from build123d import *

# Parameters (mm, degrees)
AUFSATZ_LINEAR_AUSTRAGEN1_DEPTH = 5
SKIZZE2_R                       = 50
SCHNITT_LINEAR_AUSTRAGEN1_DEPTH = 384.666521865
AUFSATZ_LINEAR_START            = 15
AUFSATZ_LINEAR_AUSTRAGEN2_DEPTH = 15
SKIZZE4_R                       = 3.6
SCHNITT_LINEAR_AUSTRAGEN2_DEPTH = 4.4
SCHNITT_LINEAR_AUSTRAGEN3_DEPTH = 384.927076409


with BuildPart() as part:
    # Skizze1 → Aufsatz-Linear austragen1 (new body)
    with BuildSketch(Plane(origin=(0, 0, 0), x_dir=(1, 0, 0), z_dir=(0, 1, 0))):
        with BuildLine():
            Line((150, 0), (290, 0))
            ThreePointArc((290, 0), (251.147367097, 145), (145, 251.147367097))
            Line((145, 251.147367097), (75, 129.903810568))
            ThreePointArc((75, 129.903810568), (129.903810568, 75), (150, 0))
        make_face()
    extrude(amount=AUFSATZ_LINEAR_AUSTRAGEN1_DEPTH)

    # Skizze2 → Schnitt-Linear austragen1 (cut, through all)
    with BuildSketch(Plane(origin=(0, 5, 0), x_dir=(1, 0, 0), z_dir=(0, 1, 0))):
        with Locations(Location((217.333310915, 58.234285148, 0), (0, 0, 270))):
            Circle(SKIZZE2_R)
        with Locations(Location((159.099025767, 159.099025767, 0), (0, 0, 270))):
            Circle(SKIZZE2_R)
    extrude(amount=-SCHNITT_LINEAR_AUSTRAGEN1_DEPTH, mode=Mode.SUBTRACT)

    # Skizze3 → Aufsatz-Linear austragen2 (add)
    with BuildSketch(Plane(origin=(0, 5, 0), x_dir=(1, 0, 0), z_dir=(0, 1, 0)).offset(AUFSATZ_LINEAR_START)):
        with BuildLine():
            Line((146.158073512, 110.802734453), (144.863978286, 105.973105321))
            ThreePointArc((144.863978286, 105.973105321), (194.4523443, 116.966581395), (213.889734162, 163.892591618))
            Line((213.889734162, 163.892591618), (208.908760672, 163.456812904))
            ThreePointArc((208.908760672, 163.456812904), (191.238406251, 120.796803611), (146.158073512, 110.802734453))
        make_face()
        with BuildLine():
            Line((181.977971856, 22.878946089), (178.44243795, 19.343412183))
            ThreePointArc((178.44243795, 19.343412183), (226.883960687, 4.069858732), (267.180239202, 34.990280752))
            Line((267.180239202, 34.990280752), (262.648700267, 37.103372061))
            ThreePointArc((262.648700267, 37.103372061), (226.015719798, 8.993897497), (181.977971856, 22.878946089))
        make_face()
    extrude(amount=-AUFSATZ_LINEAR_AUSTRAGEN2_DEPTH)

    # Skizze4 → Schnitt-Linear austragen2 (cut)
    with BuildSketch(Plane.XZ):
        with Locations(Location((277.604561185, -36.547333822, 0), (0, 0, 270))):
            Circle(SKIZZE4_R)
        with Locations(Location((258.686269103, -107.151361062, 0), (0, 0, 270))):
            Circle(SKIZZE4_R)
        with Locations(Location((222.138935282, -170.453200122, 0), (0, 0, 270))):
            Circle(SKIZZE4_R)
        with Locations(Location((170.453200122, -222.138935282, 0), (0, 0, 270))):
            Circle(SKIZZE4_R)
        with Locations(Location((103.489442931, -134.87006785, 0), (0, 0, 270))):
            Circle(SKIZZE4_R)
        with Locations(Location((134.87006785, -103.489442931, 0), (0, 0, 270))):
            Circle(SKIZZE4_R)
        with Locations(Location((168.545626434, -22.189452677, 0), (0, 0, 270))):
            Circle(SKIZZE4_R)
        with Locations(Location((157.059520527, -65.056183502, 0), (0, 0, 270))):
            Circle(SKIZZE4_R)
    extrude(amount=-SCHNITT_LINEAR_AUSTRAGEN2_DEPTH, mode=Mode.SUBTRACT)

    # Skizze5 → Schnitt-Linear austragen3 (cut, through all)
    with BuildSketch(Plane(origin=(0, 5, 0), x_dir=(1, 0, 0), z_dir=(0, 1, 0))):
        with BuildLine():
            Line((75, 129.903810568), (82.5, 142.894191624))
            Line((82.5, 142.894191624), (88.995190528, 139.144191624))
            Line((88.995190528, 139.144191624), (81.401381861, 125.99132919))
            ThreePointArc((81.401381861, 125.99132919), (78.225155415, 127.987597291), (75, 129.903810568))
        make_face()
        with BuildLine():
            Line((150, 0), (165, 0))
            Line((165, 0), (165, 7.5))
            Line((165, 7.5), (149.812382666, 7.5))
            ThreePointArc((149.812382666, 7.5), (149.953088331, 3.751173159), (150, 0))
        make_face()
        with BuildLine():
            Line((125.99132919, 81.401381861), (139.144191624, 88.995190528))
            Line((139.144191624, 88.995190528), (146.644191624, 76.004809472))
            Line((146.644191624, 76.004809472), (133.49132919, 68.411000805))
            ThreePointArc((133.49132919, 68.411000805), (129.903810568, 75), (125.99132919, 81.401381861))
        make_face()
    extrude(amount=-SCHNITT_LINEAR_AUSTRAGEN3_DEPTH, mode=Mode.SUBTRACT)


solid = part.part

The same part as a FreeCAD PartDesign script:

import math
import FreeCAD as App
import Part
import Sketcher
from FreeCAD import Vector
Q = App.Units.Quantity

doc = App.newDocument("Part")
params = doc.addObject("Spreadsheet::Sheet", "Params")
for row, (alias, value) in enumerate([
    ("sketch1_radius", "290 mm"),
    ("sketch1_radius2", "150 mm"),
    ("pad1_length", "5 mm"),
    ("sketch2_diameter", "100 mm"),
    ("sketch3_radius", "55 mm"),
    ("sketch3_radius2", "50 mm"),
    ("pad2_length", "15 mm"),
    ("sketch4_diameter", "7.2 mm"),
    ("pocket2_length", "4.4 mm"),
    ("sketch5_radius", "150 mm"),
    ("sketch5_width", "15 mm"),
    ("sketch5_length", "15 mm"),
    ("sketch5_height", "7.5 mm"),
    ("sketch5_length2", "7.5 mm"),
], start=1):
    params.set(f"A{row}", alias)
    params.set(f"B{row}", "=" + value)
    params.setAlias(f"B{row}", alias)

body = doc.addObject("PartDesign::Body", "Body")

# Sketch on XZ plane
sketch1 = body.newObject("Sketcher::SketchObject", "Sketch")
sketch1.AttachmentSupport = (doc.getObject("XZ_Plane"), [""])
sketch1.MapMode = "FlatFace"
sketch1.addGeometry(Part.LineSegment(Vector(150, 0, 0), Vector(290, 0, 0)), False)
sketch1.addGeometry(Part.ArcOfCircle(Part.Circle(Vector(0, 0, 0), Vector(0, 0, 1), 290), math.radians(-60), math.radians(0)), False)
sketch1.addGeometry(Part.LineSegment(Vector(145, -251, 0), Vector(75, -130, 0)), False)
sketch1.addGeometry(Part.ArcOfCircle(Part.Circle(Vector(0, 0, 0), Vector(0, 0, 1), 150), math.radians(-60), math.radians(0)), False)
sketch1.addConstraint(Sketcher.Constraint("Coincident", 0, 2, 1, 2))
sketch1.addConstraint(Sketcher.Constraint("Coincident", 1, 1, 2, 1))
sketch1.addConstraint(Sketcher.Constraint("Coincident", 2, 2, 3, 1))
sketch1.addConstraint(Sketcher.Constraint("Coincident", 3, 2, 0, 1))
sketch1.addConstraint(Sketcher.Constraint("Horizontal", 0))
sketch1.addConstraint(Sketcher.Constraint("Coincident", 1, 3, -1, 1))
sketch1.addConstraint(Sketcher.Constraint("Coincident", 3, 3, -1, 1))
sketch1.addConstraint(Sketcher.Constraint("PointOnObject", 0, 2, -1))
sketch1.addConstraint(Sketcher.Constraint("Radius", 1, Q("290 mm")))
sketch1.addConstraint(Sketcher.Constraint("Radius", 3, Q("150 mm")))
sketch1.addConstraint(Sketcher.Constraint("Angle", 2, Q("120 deg")))
sketch1.addConstraint(Sketcher.Constraint("DistanceX", -1, 1, 1, 1, Q("145 mm")))
sketch1.setExpression("Constraints[8]", "Params.sketch1_radius")
sketch1.setExpression("Constraints[9]", "Params.sketch1_radius2")
pad1 = body.newObject("PartDesign::Pad", "Pad")
pad1.Profile = sketch1
pad1.setExpression("Length", "Params.pad1_length")
pad1.Reversed = True

# Sketch on XZ plane
sketch2 = body.newObject("Sketcher::SketchObject", "Sketch001")
sketch2.AttachmentSupport = (doc.getObject("XZ_Plane"), [""])
sketch2.MapMode = "FlatFace"
sketch2.AttachmentOffset = App.Placement(Vector(0, 0, -5), App.Rotation())
sketch2.addGeometry(Part.Circle(Vector(217, -58, 0), Vector(0, 0, 1), 50), False)
sketch2.addGeometry(Part.Circle(Vector(159, -159, 0), Vector(0, 0, 1), 50), False)
sketch2.addConstraint(Sketcher.Constraint("Equal", 0, 1))
sketch2.addConstraint(Sketcher.Constraint("Diameter", 0, Q("100 mm")))
sketch2.addConstraint(Sketcher.Constraint("DistanceX", -1, 1, 0, 3, Q("217.333311 mm")))
sketch2.addConstraint(Sketcher.Constraint("DistanceY", 1, 3, 0, 3, Q("100.864741 mm")))
sketch2.addConstraint(Sketcher.Constraint("DistanceY", 0, 3, -1, 1, Q("58.234285 mm")))
sketch2.addConstraint(Sketcher.Constraint("DistanceX", -1, 1, 1, 3, Q("159.099026 mm")))
sketch2.setExpression("Constraints[1]", "Params.sketch2_diameter")
pocket1 = body.newObject("PartDesign::Pocket", "Pocket")
pocket1.Profile = sketch2
pocket1.Type = "ThroughAll"
pocket1.Reversed = True

# Sketch on XZ plane
sketch3 = body.newObject("Sketcher::SketchObject", "Sketch002")
sketch3.AttachmentSupport = (doc.getObject("XZ_Plane"), [""])
sketch3.MapMode = "FlatFace"
sketch3.AttachmentOffset = App.Placement(Vector(0, 0, -20), App.Rotation())
sketch3.addGeometry(Part.LineSegment(Vector(146.2, -110.8, 0), Vector(144.9, -106, 0)), False)
sketch3.addGeometry(Part.ArcOfCircle(Part.Circle(Vector(159.1, -159.1, 0), Vector(0, 0, 1), 55), math.radians(-5), math.radians(105)), False)
sketch3.addGeometry(Part.LineSegment(Vector(213.9, -163.9, 0), Vector(208.9, -163.5, 0)), False)
sketch3.addGeometry(Part.ArcOfCircle(Part.Circle(Vector(159.1, -159.1, 0), Vector(0, 0, 1), 50), math.radians(-5), math.radians(105)), False)
sketch3.addGeometry(Part.LineSegment(Vector(182, -22.9, 0), Vector(178.4, -19.3, 0)), False)
sketch3.addGeometry(Part.ArcOfCircle(Part.Circle(Vector(217.3, -58.2, 0), Vector(0, 0, 1), 55), math.radians(25), math.radians(135)), False)
sketch3.addGeometry(Part.LineSegment(Vector(267.2, -35, 0), Vector(262.6, -37.1, 0)), False)
sketch3.addGeometry(Part.ArcOfCircle(Part.Circle(Vector(217.3, -58.2, 0), Vector(0, 0, 1), 50), math.radians(25), math.radians(135)), False)
sketch3.addConstraint(Sketcher.Constraint("Coincident", 0, 2, 1, 2))
sketch3.addConstraint(Sketcher.Constraint("Coincident", 1, 1, 2, 1))
sketch3.addConstraint(Sketcher.Constraint("Coincident", 2, 2, 3, 1))
sketch3.addConstraint(Sketcher.Constraint("Coincident", 3, 2, 0, 1))
sketch3.addConstraint(Sketcher.Constraint("Coincident", 4, 2, 5, 2))
sketch3.addConstraint(Sketcher.Constraint("Coincident", 5, 1, 6, 1))
sketch3.addConstraint(Sketcher.Constraint("Coincident", 6, 2, 7, 1))
sketch3.addConstraint(Sketcher.Constraint("Coincident", 7, 2, 4, 1))
sketch3.addConstraint(Sketcher.Constraint("Coincident", 3, 3, 1, 3))
sketch3.addConstraint(Sketcher.Constraint("Coincident", 7, 3, 5, 3))
sketch3.addConstraint(Sketcher.Constraint("Equal", 1, 5))
sketch3.addConstraint(Sketcher.Constraint("Equal", 3, 7))
sketch3.addConstraint(Sketcher.Constraint("Radius", 1, Q("55 mm")))
sketch3.addConstraint(Sketcher.Constraint("Radius", 3, Q("50 mm")))
sketch3.addConstraint(Sketcher.Constraint("Angle", 0, Q("105 deg")))
sketch3.addConstraint(Sketcher.Constraint("Angle", 2, Q("175 deg")))
sketch3.addConstraint(Sketcher.Constraint("Angle", 4, Q("135 deg")))
sketch3.addConstraint(Sketcher.Constraint("Angle", 6, Q("-155 deg")))
sketch3.addConstraint(Sketcher.Constraint("DistanceX", -1, 1, 6, 2, Q("262.6487 mm")))
sketch3.addConstraint(Sketcher.Constraint("DistanceX", 4, 2, 5, 1, Q("88.737801 mm")))
sketch3.addConstraint(Sketcher.Constraint("DistanceX", -1, 1, 5, 3, Q("217.333311 mm")))
sketch3.addConstraint(Sketcher.Constraint("DistanceX", -1, 1, 0, 2, Q("144.863978 mm")))
sketch3.addConstraint(Sketcher.Constraint("DistanceY", 1, 1, -1, 1, Q("163.892592 mm")))
sketch3.addConstraint(Sketcher.Constraint("DistanceX", -1, 1, 2, 2, Q("208.908761 mm")))
sketch3.addConstraint(Sketcher.Constraint("DistanceY", 5, 1, -1, 1, Q("34.990281 mm")))
sketch3.addConstraint(Sketcher.Constraint("DistanceY", 1, 3, 5, 3, Q("100.864741 mm")))
sketch3.setExpression("Constraints[12]", "Params.sketch3_radius")
sketch3.setExpression("Constraints[13]", "Params.sketch3_radius2")
pad2 = body.newObject("PartDesign::Pad", "Pad001")
pad2.Profile = sketch3
pad2.setExpression("Length", "Params.pad2_length")

# Sketch on XZ plane
sketch4 = body.newObject("Sketcher::SketchObject", "Sketch003")
sketch4.AttachmentSupport = (doc.getObject("XZ_Plane"), [""])
sketch4.MapMode = "FlatFace"
sketch4.addGeometry(Part.Circle(Vector(277.6, -36.5, 0), Vector(0, 0, 1), 3.6), False)
sketch4.addGeometry(Part.Circle(Vector(258.7, -107.2, 0), Vector(0, 0, 1), 3.6), False)
sketch4.addGeometry(Part.Circle(Vector(222.1, -170.5, 0), Vector(0, 0, 1), 3.6), False)
sketch4.addGeometry(Part.Circle(Vector(170.5, -222.1, 0), Vector(0, 0, 1), 3.6), False)
sketch4.addGeometry(Part.Circle(Vector(103.5, -134.9, 0), Vector(0, 0, 1), 3.6), False)
sketch4.addGeometry(Part.Circle(Vector(134.9, -103.5, 0), Vector(0, 0, 1), 3.6), False)
sketch4.addGeometry(Part.Circle(Vector(168.5, -22.2, 0), Vector(0, 0, 1), 3.6), False)
sketch4.addGeometry(Part.Circle(Vector(157.1, -65.1, 0), Vector(0, 0, 1), 3.6), False)
sketch4.addConstraint(Sketcher.Constraint("Equal", 0, 1))
sketch4.addConstraint(Sketcher.Constraint("Equal", 1, 2))
sketch4.addConstraint(Sketcher.Constraint("Equal", 2, 3))
sketch4.addConstraint(Sketcher.Constraint("Equal", 3, 4))
sketch4.addConstraint(Sketcher.Constraint("Equal", 4, 5))
sketch4.addConstraint(Sketcher.Constraint("Equal", 5, 6))
sketch4.addConstraint(Sketcher.Constraint("Equal", 6, 7))
sketch4.addConstraint(Sketcher.Constraint("Diameter", 0, Q("7.2 mm")))
sketch4.addConstraint(Sketcher.Constraint("DistanceY", 2, 3, -1, 1, Q("170.4532 mm")))
sketch4.addConstraint(Sketcher.Constraint("DistanceX", -1, 1, 3, 3, Q("170.4532 mm")))
sketch4.addConstraint(Sketcher.Constraint("DistanceY", 3, 3, 0, 3, Q("185.591601 mm")))
sketch4.addConstraint(Sketcher.Constraint("DistanceX", 5, 3, 1, 3, Q("123.816201 mm")))
sketch4.addConstraint(Sketcher.Constraint("DistanceX", -1, 1, 0, 3, Q("277.604561 mm")))
sketch4.addConstraint(Sketcher.Constraint("DistanceX", -1, 1, 1, 3, Q("258.686269 mm")))
sketch4.addConstraint(Sketcher.Constraint("DistanceY", 1, 3, -1, 1, Q("107.151361 mm")))
sketch4.addConstraint(Sketcher.Constraint("DistanceX", -1, 1, 7, 3, Q("157.059521 mm")))
sketch4.addConstraint(Sketcher.Constraint("DistanceX", 4, 3, 0, 3, Q("174.115118 mm")))
sketch4.addConstraint(Sketcher.Constraint("DistanceY", 1, 3, 5, 3, Q("3.661918 mm")))
sketch4.addConstraint(Sketcher.Constraint("DistanceY", 5, 3, 0, 3, Q("66.942109 mm")))
sketch4.addConstraint(Sketcher.Constraint("DistanceX", 5, 3, 6, 3, Q("33.675559 mm")))
sketch4.addConstraint(Sketcher.Constraint("DistanceY", 5, 3, 6, 3, Q("81.29999 mm")))
sketch4.addConstraint(Sketcher.Constraint("DistanceX", 6, 3, 2, 3, Q("53.593309 mm")))
sketch4.addConstraint(Sketcher.Constraint("DistanceY", 5, 3, 7, 3, Q("38.433259 mm")))
sketch4.addConstraint(Sketcher.Constraint("DistanceY", 4, 3, -1, 1, Q("134.870068 mm")))
sketch4.setExpression("Constraints[7]", "Params.sketch4_diameter")
pocket2 = body.newObject("PartDesign::Pocket", "Pocket001")
pocket2.Profile = sketch4
pocket2.setExpression("Length", "Params.pocket2_length")

# Sketch on XZ plane
sketch5 = body.newObject("Sketcher::SketchObject", "Sketch004")
sketch5.AttachmentSupport = (doc.getObject("XZ_Plane"), [""])
sketch5.MapMode = "FlatFace"
sketch5.AttachmentOffset = App.Placement(Vector(0, 0, -5), App.Rotation())
sketch5.addGeometry(Part.LineSegment(Vector(82, -143, 0), Vector(75, -130, 0)), False)
sketch5.addGeometry(Part.ArcOfCircle(Part.Circle(Vector(0, 0, 0), Vector(0, 0, 1), 150), math.radians(-60), math.radians(-57.13)), False)
sketch5.addGeometry(Part.LineSegment(Vector(81, -126, 0), Vector(89, -139, 0)), False)
sketch5.addGeometry(Part.LineSegment(Vector(89, -139, 0), Vector(82, -143, 0)), False)
sketch5.addGeometry(Part.LineSegment(Vector(150, 0, 0), Vector(165, 0, 0)), False)
sketch5.addGeometry(Part.LineSegment(Vector(165, 0, 0), Vector(165, -8, 0)), False)
sketch5.addGeometry(Part.LineSegment(Vector(165, -8, 0), Vector(150, -8, 0)), False)
sketch5.addGeometry(Part.ArcOfCircle(Part.Circle(Vector(0, 0, 0), Vector(0, 0, 1), 150), math.radians(-2.87), math.radians(0)), False)
sketch5.addGeometry(Part.LineSegment(Vector(139, -89, 0), Vector(126, -81, 0)), False)
sketch5.addGeometry(Part.ArcOfCircle(Part.Circle(Vector(0, 0, 0), Vector(0, 0, 1), 150), math.radians(-32.87), math.radians(-27.13)), False)
sketch5.addGeometry(Part.LineSegment(Vector(133, -68, 0), Vector(147, -76, 0)), False)
sketch5.addGeometry(Part.LineSegment(Vector(147, -76, 0), Vector(139, -89, 0)), False)
sketch5.addConstraint(Sketcher.Constraint("Coincident", 0, 2, 1, 1))
sketch5.addConstraint(Sketcher.Constraint("Coincident", 1, 2, 2, 1))
sketch5.addConstraint(Sketcher.Constraint("Coincident", 2, 2, 3, 1))
sketch5.addConstraint(Sketcher.Constraint("Coincident", 3, 2, 0, 1))
sketch5.addConstraint(Sketcher.Constraint("Coincident", 4, 2, 5, 1))
sketch5.addConstraint(Sketcher.Constraint("Coincident", 5, 2, 6, 1))
sketch5.addConstraint(Sketcher.Constraint("Coincident", 6, 2, 7, 1))
sketch5.addConstraint(Sketcher.Constraint("Coincident", 7, 2, 4, 1))
sketch5.addConstraint(Sketcher.Constraint("Coincident", 8, 2, 9, 1))
sketch5.addConstraint(Sketcher.Constraint("Coincident", 9, 2, 10, 1))
sketch5.addConstraint(Sketcher.Constraint("Coincident", 10, 2, 11, 1))
sketch5.addConstraint(Sketcher.Constraint("Coincident", 11, 2, 8, 1))
sketch5.addConstraint(Sketcher.Constraint("Horizontal", 4))
sketch5.addConstraint(Sketcher.Constraint("Vertical", 5))
sketch5.addConstraint(Sketcher.Constraint("Horizontal", 6))
sketch5.addConstraint(Sketcher.Constraint("Coincident", 1, 3, -1, 1))
sketch5.addConstraint(Sketcher.Constraint("Coincident", 7, 3, -1, 1))
sketch5.addConstraint(Sketcher.Constraint("Coincident", 9, 3, -1, 1))
sketch5.addConstraint(Sketcher.Constraint("Equal", 1, 7))
sketch5.addConstraint(Sketcher.Constraint("Equal", 7, 9))
sketch5.addConstraint(Sketcher.Constraint("PointOnObject", 4, 2, -1))
sketch5.addConstraint(Sketcher.Constraint("Parallel", 0, 2))
sketch5.addConstraint(Sketcher.Constraint("Perpendicular", 2, 3))
sketch5.addConstraint(Sketcher.Constraint("Parallel", 8, 10))
sketch5.addConstraint(Sketcher.Constraint("Perpendicular", 10, 11))
sketch5.addConstraint(Sketcher.Constraint("Equal", 2, 8))
sketch5.addConstraint(Sketcher.Constraint("Equal", 8, 10))
sketch5.addConstraint(Sketcher.Constraint("Equal", 0, 11))
sketch5.addConstraint(Sketcher.Constraint("Radius", 1, Q("150 mm")))
sketch5.addConstraint(Sketcher.Constraint("DistanceX", 4, 1, 4, 2, Q("15 mm")))
sketch5.addConstraint(Sketcher.Constraint("Angle", 0, Q("120 deg")))
sketch5.addConstraint(Sketcher.Constraint("Angle", 8, Q("150 deg")))
sketch5.addConstraint(Sketcher.Constraint("Distance", 0, Q("15 mm")))
sketch5.addConstraint(Sketcher.Constraint("DistanceY", 5, 2, 5, 1, Q("7.5 mm")))
sketch5.addConstraint(Sketcher.Constraint("DistanceX", -1, 1, 0, 2, Q("75 mm")))
sketch5.addConstraint(Sketcher.Constraint("Distance", 3, Q("7.5 mm")))
sketch5.setExpression("Constraints[28]", "Params.sketch5_radius")
sketch5.setExpression("Constraints[29]", "Params.sketch5_width")
sketch5.setExpression("Constraints[32]", "Params.sketch5_length")
sketch5.setExpression("Constraints[33]", "Params.sketch5_height")
sketch5.setExpression("Constraints[35]", "Params.sketch5_length2")
pocket3 = body.newObject("PartDesign::Pocket", "Pocket002")
pocket3.Profile = sketch5
pocket3.Type = "ThroughAll"
pocket3.Reversed = True

doc.recompute()
